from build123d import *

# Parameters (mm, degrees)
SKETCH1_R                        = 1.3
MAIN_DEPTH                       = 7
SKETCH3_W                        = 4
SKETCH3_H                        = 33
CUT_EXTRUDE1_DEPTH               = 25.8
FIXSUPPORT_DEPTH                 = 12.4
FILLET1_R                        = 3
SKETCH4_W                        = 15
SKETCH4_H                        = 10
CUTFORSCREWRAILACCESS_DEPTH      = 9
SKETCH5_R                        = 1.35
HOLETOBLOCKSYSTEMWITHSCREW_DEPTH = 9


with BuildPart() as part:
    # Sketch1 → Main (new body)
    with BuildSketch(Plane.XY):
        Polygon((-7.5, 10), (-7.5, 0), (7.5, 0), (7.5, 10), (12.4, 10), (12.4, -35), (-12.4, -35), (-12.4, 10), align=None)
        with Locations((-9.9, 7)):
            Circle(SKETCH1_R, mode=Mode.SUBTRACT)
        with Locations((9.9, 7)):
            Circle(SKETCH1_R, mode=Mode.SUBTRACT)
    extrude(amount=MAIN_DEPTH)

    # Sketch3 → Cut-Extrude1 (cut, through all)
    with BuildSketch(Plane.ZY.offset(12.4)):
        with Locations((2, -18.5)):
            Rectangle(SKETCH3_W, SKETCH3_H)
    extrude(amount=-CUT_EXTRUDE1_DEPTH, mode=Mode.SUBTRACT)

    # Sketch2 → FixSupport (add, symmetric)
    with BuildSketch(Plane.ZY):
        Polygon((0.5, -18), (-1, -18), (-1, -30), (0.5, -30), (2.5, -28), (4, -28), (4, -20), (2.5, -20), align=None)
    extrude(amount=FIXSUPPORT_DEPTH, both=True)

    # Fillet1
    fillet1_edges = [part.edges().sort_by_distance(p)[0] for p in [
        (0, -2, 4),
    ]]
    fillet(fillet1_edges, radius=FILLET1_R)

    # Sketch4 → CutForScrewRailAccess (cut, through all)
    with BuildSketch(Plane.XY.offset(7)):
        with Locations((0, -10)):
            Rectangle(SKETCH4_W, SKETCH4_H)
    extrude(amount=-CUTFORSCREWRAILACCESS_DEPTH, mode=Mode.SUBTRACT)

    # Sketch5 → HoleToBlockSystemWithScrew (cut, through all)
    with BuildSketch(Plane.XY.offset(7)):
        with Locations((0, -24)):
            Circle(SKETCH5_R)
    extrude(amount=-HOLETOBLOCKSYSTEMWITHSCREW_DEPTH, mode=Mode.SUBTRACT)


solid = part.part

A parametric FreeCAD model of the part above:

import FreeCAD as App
import Part
import Sketcher
from FreeCAD import Vector
Q = App.Units.Quantity


def edges_at(feature, points):
    """Names of the edges that pass closest to the given points."""
    edges = feature.Shape.Edges
    near = lambda p: min(range(len(edges)), key=lambda i: edges[i].distToShape(Part.Vertex(*p))[0])
    return sorted({f"Edge{near(p) + 1}" for p in points})

doc = App.newDocument("Part")
params = doc.addObject("Spreadsheet::Sheet", "Params")
for row, (alias, value) in enumerate([
    ("sketch1_diameter", "2.6 mm"),
    ("sketch1_width", "15 mm"),
    ("sketch1_height", "10 mm"),
    ("sketch1_height2", "45 mm"),
    ("sketch1_width2", "4.9 mm"),
    ("pad1_length", "7 mm"),
    ("sketch2_width", "33 mm"),
    ("sketch2_height", "4 mm"),
    ("sketch3_width", "12 mm"),
    ("sketch3_width2", "8 mm"),
    ("sketch3_height", "1.5 mm"),
    ("pad2_length", "24.8 mm"),
    ("fillet_radius", "3 mm"),
    ("sketch4_width", "15 mm"),
    ("sketch4_height", "10 mm"),
    ("sketch5_diameter", "2.7 mm"),
], start=1):
    params.set(f"A{row}", alias)
    params.set(f"B{row}", "=" + value)
    params.setAlias(f"B{row}", alias)

body = doc.addObject("PartDesign::Body", "Body")

sketch1 = doc.addObject("Sketcher::SketchObject", "Sketch")
body.addObject(sketch1)
sketch1.AttachmentSupport = (doc.XY_Plane, [""])
sketch1.MapMode = "FlatFace"
sketch1.addGeometry([
    Part.LineSegment(Vector(-7.5, 0, 0), Vector(-7.5, 10, 0)),
    Part.LineSegment(Vector(-7.5, 10, 0), Vector(-12.4, 10, 0)),
    Part.LineSegment(Vector(-12.4, 10, 0), Vector(-12.4, -35, 0)),
    Part.LineSegment(Vector(-12.4, -35, 0), Vector(12.4, -35, 0)),
    Part.LineSegment(Vector(12.4, -35, 0), Vector(12.4, 10, 0)),
    Part.LineSegment(Vector(12.4, 10, 0), Vector(7.5, 10, 0)),
    Part.LineSegment(Vector(7.5, 10, 0), Vector(7.5, 0, 0)),
    Part.LineSegment(Vector(7.5, 0, 0), Vector(-7.5, 0, 0)),
    Part.Circle(Vector(9.9, 7, 0), Vector(0, 0, 1), 1.3),
    Part.Circle(Vector(-9.9, 7, 0), Vector(0, 0, 1), 1.3),
], False)
sketch1.addConstraint([
    Sketcher.Constraint("Coincident", 0, 2, 1, 1),
    Sketcher.Constraint("Coincident", 1, 2, 2, 1),
    Sketcher.Constraint("Coincident", 2, 2, 3, 1),
    Sketcher.Constraint("Coincident", 3, 2, 4, 1),
    Sketcher.Constraint("Coincident", 4, 2, 5, 1),
    Sketcher.Constraint("Coincident", 5, 2, 6, 1),
    Sketcher.Constraint("Coincident", 6, 2, 7, 1),
    Sketcher.Constraint("Coincident", 7, 2, 0, 1),
    Sketcher.Constraint("Vertical", 0),
    Sketcher.Constraint("Horizontal", 1),
    Sketcher.Constraint("Vertical", 2),
    Sketcher.Constraint("Horizontal", 3),
    Sketcher.Constraint("Vertical", 4),
    Sketcher.Constraint("Horizontal", 5),
    Sketcher.Constraint("Vertical", 6),
    Sketcher.Constraint("Horizontal", 7),
    Sketcher.Constraint("Equal", 8, 9),
    Sketcher.Constraint("Symmetric", 6, 2, 7, 2, -1, 1),
    Sketcher.Constraint("Symmetric", 8, 3, 9, 3, -2),
    Sketcher.Constraint("Symmetric", 1, 2, 4, 2, -2),
    Sketcher.Constraint("Diameter", 8, Q("2.6 mm")),
    Sketcher.Constraint("DistanceX", 7, 2, 7, 1, Q("15 mm")),
    Sketcher.Constraint("DistanceY", 0, 1, 0, 2, Q("10 mm")),
    Sketcher.Constraint("DistanceY", 2, 2, 2, 1, Q("45 mm")),
    Sketcher.Constraint("DistanceX", 1, 2, 1, 1, Q("4.9 mm")),
    Sketcher.Constraint("DistanceY", -1, 1, 8, 3, Q("7 mm")),
    Sketcher.Constraint("DistanceX", -1, 1, 8, 3, Q("9.9 mm")),
])
sketch1.setExpression("Constraints[20]", "Params.sketch1_diameter")
sketch1.setExpression("Constraints[21]", "Params.sketch1_width")
sketch1.setExpression("Constraints[22]", "Params.sketch1_height")
sketch1.setExpression("Constraints[23]", "Params.sketch1_height2")
sketch1.setExpression("Constraints[24]", "Params.sketch1_width2")
pad1 = doc.addObject("PartDesign::Pad", "Pad")
body.addObject(pad1)
pad1.Profile = sketch1
pad1.setExpression("Length", "Params.pad1_length")

sketch2 = doc.addObject("Sketcher::SketchObject", "Sketch001")
body.addObject(sketch2)
sketch2.AttachmentSupport = (doc.YZ_Plane, [""])
sketch2.MapMode = "FlatFace"
sketch2.AttachmentOffset = App.Placement(Vector(0, 0, -12.4), App.Rotation())
sketch2.addGeometry([
    Part.LineSegment(Vector(-2, 0, 0), Vector(-35, 0, 0)),
    Part.LineSegment(Vector(-35, 0, 0), Vector(-35, 4, 0)),
    Part.LineSegment(Vector(-35, 4, 0), Vector(-2, 4, 0)),
    Part.LineSegment(Vector(-2, 4, 0), Vector(-2, 0, 0)),
], False)
sketch2.addConstraint([
    Sketcher.Constraint("Coincident", 0, 2, 1, 1),
    Sketcher.Constraint("Coincident", 1, 2, 2, 1),
    Sketcher.Constraint("Coincident", 2, 2, 3, 1),
    Sketcher.Constraint("Coincident", 3, 2, 0, 1),
    Sketcher.Constraint("Horizontal", 0),
    Sketcher.Constraint("Vertical", 1),
    Sketcher.Constraint("Horizontal", 2),
    Sketcher.Constraint("Vertical", 3),
    Sketcher.Constraint("PointOnObject", 0, 2, -1),
    Sketcher.Constraint("DistanceX", 0, 2, 0, 1, Q("33 mm")),
    Sketcher.Constraint("DistanceY", 1, 1, 1, 2, Q("4 mm")),
    Sketcher.Constraint("DistanceX", 0, 2, -1, 1, Q("35 mm")),
])
sketch2.setExpression("Constraints[9]", "Params.sketch2_width")
sketch2.setExpression("Constraints[10]", "Params.sketch2_height")
pocket1 = doc.addObject("PartDesign::Pocket", "Pocket")
body.addObject(pocket1)
pocket1.Profile = sketch2
pocket1.Type = "ThroughAll"
pocket1.Reversed = True

sketch3 = doc.addObject("Sketcher::SketchObject", "Sketch002")
body.addObject(sketch3)
sketch3.AttachmentSupport = (doc.YZ_Plane, [""])
sketch3.MapMode = "FlatFace"
sketch3.addGeometry([
    Part.LineSegment(Vector(-18, 0.5, 0), Vector(-18, -1, 0)),
    Part.LineSegment(Vector(-18, -1, 0), Vector(-30, -1, 0)),
    Part.LineSegment(Vector(-30, -1, 0), Vector(-30, 0.5, 0)),
    Part.LineSegment(Vector(-30, 0.5, 0), Vector(-28, 2.5, 0)),
    Part.LineSegment(Vector(-28, 2.5, 0), Vector(-28, 4, 0)),
    Part.LineSegment(Vector(-28, 4, 0), Vector(-20, 4, 0)),
    Part.LineSegment(Vector(-20, 4, 0), Vector(-20, 2.5, 0)),
    Part.LineSegment(Vector(-20, 2.5, 0), Vector(-18, 0.5, 0)),
], False)
sketch3.addConstraint([
    Sketcher.Constraint("Coincident", 0, 2, 1, 1),
    Sketcher.Constraint("Coincident", 1, 2, 2, 1),
    Sketcher.Constraint("Coincident", 2, 2, 3, 1),
    Sketcher.Constraint("Coincident", 3, 2, 4, 1),
    Sketcher.Constraint("Coincident", 4, 2, 5, 1),
    Sketcher.Constraint("Coincident", 5, 2, 6, 1),
    Sketcher.Constraint("Coincident", 6, 2, 7, 1),
    Sketcher.Constraint("Coincident", 7, 2, 0, 1),
    Sketcher.Constraint("Vertical", 0),
    Sketcher.Constraint("Horizontal", 1),
    Sketcher.Constraint("Vertical", 2),
    Sketcher.Constraint("Vertical", 4),
    Sketcher.Constraint("Horizontal", 5),
    Sketcher.Constraint("Vertical", 6),
    Sketcher.Constraint("Perpendicular", 3, 7),
    Sketcher.Constraint("Horizontal", 3, 2, 6, 2),
    Sketcher.Constraint("Horizontal", 2, 2, 7, 2),
    Sketcher.Constraint("Equal", 2, 4),
    Sketcher.Constraint("Equal", 3, 7),
    Sketcher.Constraint("DistanceX", 1, 2, 1, 1, Q("12 mm")),
    Sketcher.Constraint("DistanceX", 5, 1, 5, 2, Q("8 mm")),
    Sketcher.Constraint("DistanceY", 0, 2, 0, 1, Q("1.5 mm")),
    Sketcher.Constraint("DistanceX", 0, 2, -1, 1, Q("18 mm")),
    Sketcher.Constraint("DistanceY", 0, 2, -1, 1, Q("1 mm")),
])
sketch3.setExpression("Constraints[19]", "Params.sketch3_width")
sketch3.setExpression("Constraints[20]", "Params.sketch3_width2")
sketch3.setExpression("Constraints[21]", "Params.sketch3_height")
pad2 = doc.addObject("PartDesign::Pad", "Pad001")
body.addObject(pad2)
pad2.Profile = sketch3
pad2.setExpression("Length", "Params.pad2_length")
pad2.Midplane = True
doc.recompute()

fillet = doc.addObject("PartDesign::Fillet", "Fillet")
body.addObject(fillet)
fillet.Base = (pad2, edges_at(pad2, [(0, -2, 4)]))
fillet.setExpression("Radius", "Params.fillet_radius")

sketch4 = doc.addObject("Sketcher::SketchObject", "Sketch003")
body.addObject(sketch4)
sketch4.AttachmentSupport = (doc.XY_Plane, [""])
sketch4.MapMode = "FlatFace"
sketch4.AttachmentOffset = App.Placement(Vector(0, 0, 7), App.Rotation())
sketch4.addGeometry([
    Part.LineSegment(Vector(-8, -5, 0), Vector(-8, -15, 0)),
    Part.LineSegment(Vector(-8, -15, 0), Vector(8, -15, 0)),
    Part.LineSegment(Vector(8, -15, 0), Vector(8, -5, 0)),
    Part.LineSegment(Vector(8, -5, 0), Vector(-8, -5, 0)),
], False)
sketch4.addConstraint([
    Sketcher.Constraint("Coincident", 0, 2, 1, 1),
    Sketcher.Constraint("Coincident", 1, 2, 2, 1),
    Sketcher.Constraint("Coincident", 2, 2, 3, 1),
    Sketcher.Constraint("Coincident", 3, 2, 0, 1),
    Sketcher.Constraint("Vertical", 0),
    Sketcher.Constraint("Horizontal", 1),
    Sketcher.Constraint("Vertical", 2),
    Sketcher.Constraint("Horizontal", 3),
    Sketcher.Constraint("DistanceX", 1, 1, 1, 2, Q("15 mm")),
    Sketcher.Constraint("DistanceY", 0, 2, 0, 1, Q("10 mm")),
    Sketcher.Constraint("DistanceY", 0, 2, -1, 1, Q("15 mm")),
    Sketcher.Constraint("DistanceX", 0, 2, -1, 1, Q("7.5 mm")),
])
sketch4.setExpression("Constraints[8]", "Params.sketch4_width")
sketch4.setExpression("Constraints[9]", "Params.sketch4_height")
pocket2 = doc.addObject("PartDesign::Pocket", "Pocket001")
body.addObject(pocket2)
pocket2.Profile = sketch4
pocket2.Type = "ThroughAll"

sketch5 = doc.addObject("Sketcher::SketchObject", "Sketch004")
body.addObject(sketch5)
sketch5.AttachmentSupport = (doc.XY_Plane, [""])
sketch5.MapMode = "FlatFace"
sketch5.AttachmentOffset = App.Placement(Vector(0, 0, 7), App.Rotation())
sketch5.addGeometry(Part.Circle(Vector(0, -24, 0), Vector(0, 0, 1), 1.4), False)
sketch5.addConstraint([
    Sketcher.Constraint("PointOnObject", 0, 3, -2),
    Sketcher.Constraint("Diameter", 0, Q("2.7 mm")),
    Sketcher.Constraint("DistanceY", 0, 3, -1, 1, Q("24 mm")),
])
sketch5.setExpression("Constraints[1]", "Params.sketch5_diameter")
pocket3 = doc.addObject("PartDesign::Pocket", "Pocket002")
body.addObject(pocket3)
pocket3.Profile = sketch5
pocket3.Type = "ThroughAll"

doc.recompute()
